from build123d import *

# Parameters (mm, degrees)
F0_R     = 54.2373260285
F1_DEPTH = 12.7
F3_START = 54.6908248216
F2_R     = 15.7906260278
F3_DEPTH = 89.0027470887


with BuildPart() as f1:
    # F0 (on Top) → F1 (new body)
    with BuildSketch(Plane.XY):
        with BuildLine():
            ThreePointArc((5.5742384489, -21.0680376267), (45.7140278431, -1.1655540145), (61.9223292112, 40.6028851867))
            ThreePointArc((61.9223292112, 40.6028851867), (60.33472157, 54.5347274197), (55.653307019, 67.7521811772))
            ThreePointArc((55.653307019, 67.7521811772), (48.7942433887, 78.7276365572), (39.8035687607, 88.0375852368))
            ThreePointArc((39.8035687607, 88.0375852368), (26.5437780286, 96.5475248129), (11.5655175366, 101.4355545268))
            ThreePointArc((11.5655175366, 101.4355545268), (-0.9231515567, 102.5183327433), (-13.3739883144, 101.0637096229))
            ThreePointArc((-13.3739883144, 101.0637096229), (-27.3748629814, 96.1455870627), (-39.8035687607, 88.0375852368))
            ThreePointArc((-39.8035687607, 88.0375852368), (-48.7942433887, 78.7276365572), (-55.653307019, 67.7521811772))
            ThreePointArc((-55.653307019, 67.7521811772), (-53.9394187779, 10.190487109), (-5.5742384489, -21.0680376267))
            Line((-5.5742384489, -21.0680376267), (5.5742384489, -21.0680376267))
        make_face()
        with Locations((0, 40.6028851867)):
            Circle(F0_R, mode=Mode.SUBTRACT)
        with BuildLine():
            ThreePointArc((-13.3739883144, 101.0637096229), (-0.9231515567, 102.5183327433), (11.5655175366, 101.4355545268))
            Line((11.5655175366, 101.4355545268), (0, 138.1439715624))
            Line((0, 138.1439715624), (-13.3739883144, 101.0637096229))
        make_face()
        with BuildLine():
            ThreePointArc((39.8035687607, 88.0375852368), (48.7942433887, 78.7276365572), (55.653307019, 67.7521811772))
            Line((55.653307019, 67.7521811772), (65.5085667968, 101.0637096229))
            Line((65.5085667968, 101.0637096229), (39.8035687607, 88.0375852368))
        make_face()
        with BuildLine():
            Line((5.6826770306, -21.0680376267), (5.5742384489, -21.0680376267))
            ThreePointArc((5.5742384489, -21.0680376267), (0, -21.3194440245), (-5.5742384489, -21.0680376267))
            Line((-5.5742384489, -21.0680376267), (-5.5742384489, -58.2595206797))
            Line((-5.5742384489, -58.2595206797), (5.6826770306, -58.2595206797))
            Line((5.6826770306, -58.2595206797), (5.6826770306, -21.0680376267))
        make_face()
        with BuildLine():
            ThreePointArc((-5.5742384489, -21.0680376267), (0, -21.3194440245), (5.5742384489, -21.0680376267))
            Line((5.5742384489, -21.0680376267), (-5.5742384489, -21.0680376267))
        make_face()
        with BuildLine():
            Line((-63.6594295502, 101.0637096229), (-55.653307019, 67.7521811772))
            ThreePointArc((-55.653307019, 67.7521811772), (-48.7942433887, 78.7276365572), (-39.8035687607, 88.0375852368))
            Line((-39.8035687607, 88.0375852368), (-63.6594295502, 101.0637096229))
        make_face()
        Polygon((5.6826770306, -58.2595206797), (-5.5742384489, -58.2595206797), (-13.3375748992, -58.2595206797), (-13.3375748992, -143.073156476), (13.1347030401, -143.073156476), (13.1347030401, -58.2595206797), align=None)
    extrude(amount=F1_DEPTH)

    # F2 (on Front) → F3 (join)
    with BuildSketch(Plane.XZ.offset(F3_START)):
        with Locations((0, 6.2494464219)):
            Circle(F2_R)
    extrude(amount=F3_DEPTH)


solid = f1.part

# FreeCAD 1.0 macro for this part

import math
import FreeCAD as App
import Part
import Sketcher
Q = App.Units.Quantity

doc = App.newDocument("Part")
params = doc.addObject("Spreadsheet::Sheet", "Params")
for row, (alias, value) in enumerate([
    ("pad1_length", "0.5 in"),
    ("pad2_length", "89.002747 mm"),
], start=1):
    params.set(f"A{row}", alias)
    params.set(f"B{row}", "=" + value)
    params.setAlias(f"B{row}", alias)

body = doc.addObject("PartDesign::Body", "Body")

sketch1 = doc.addObject("Sketcher::SketchObject", "Sketch")
body.addObject(sketch1)
sketch1.AttachmentSupport = (doc.XY_Plane, [""])
sketch1.MapMode = "FlatFace"
sketch1.addGeometry([
    Part.LineSegment(App.Vector(13.13, -58.26, 0), App.Vector(5.68, -58.26, 0)),
    Part.LineSegment(App.Vector(5.68, -58.26, 0), App.Vector(5.68, -21.07, 0)),
    Part.LineSegment(App.Vector(5.68, -21.07, 0), App.Vector(5.57, -21.07, 0)),
    Part.ArcOfCircle(Part.Circle(App.Vector(0, 40.6, 0), App.Vector(0, 0, 1), 61.92), math.radians(-85), math.radians(0)),
    Part.ArcOfCircle(Part.Circle(App.Vector(0, 40.6, 0), App.Vector(0, 0, 1), 61.92), math.radians(0), math.radians(26)),
    Part.LineSegment(App.Vector(55.65, 67.75, 0), App.Vector(65.51, 101.06, 0)),
    Part.LineSegment(App.Vector(65.51, 101.06, 0), App.Vector(39.8, 88.04, 0)),
    Part.ArcOfCircle(Part.Circle(App.Vector(0, 40.6, 0), App.Vector(0, 0, 1), 61.92), math.radians(50), math.radians(79)),
    Part.LineSegment(App.Vector(11.57, 101.44, 0), App.Vector(0, 138.14, 0)),
    Part.LineSegment(App.Vector(0, 138.14, 0), App.Vector(-13.37, 101.06, 0)),
    Part.ArcOfCircle(Part.Circle(App.Vector(0, 40.6, 0), App.Vector(0, 0, 1), 61.92), math.radians(102), math.radians(130)),
    Part.LineSegment(App.Vector(-39.8, 88.04, 0), App.Vector(-63.66, 101.06, 0)),
    Part.LineSegment(App.Vector(-63.66, 101.06, 0), App.Vector(-55.65, 67.75, 0)),
    Part.ArcOfCircle(Part.Circle(App.Vector(0, 40.6, 0), App.Vector(0, 0, 1), 61.92), math.radians(154), math.radians(265)),
    Part.LineSegment(App.Vector(-5.57, -21.07, 0), App.Vector(-5.57, -58.26, 0)),
    Part.LineSegment(App.Vector(-5.57, -58.26, 0), App.Vector(-13.34, -58.26, 0)),
    Part.LineSegment(App.Vector(-13.34, -58.26, 0), App.Vector(-13.34, -143.07, 0)),
    Part.LineSegment(App.Vector(-13.34, -143.07, 0), App.Vector(13.13, -143.07, 0)),
    Part.LineSegment(App.Vector(13.13, -143.07, 0), App.Vector(13.13, -58.26, 0)),
    Part.Circle(App.Vector(0, 40.6, 0), App.Vector(0, 0, 1), 54.24),
], False)
sketch1.addConstraint([
    Sketcher.Constraint("Coincident", 0, 2, 1, 1),
    Sketcher.Constraint("Coincident", 1, 2, 2, 1),
    Sketcher.Constraint("Coincident", 2, 2, 3, 1),
    Sketcher.Constraint("Tangent", 3, 2, 4, 1),
    Sketcher.Constraint("Coincident", 4, 2, 5, 1),
    Sketcher.Constraint("Coincident", 5, 2, 6, 1),
    Sketcher.Constraint("Coincident", 6, 2, 7, 1),
    Sketcher.Constraint("Coincident", 7, 2, 8, 1),
    Sketcher.Constraint("Coincident", 8, 2, 9, 1),
    Sketcher.Constraint("Coincident", 9, 2, 10, 1),
    Sketcher.Constraint("Coincident", 10, 2, 11, 1),
    Sketcher.Constraint("Coincident", 11, 2, 12, 1),
    Sketcher.Constraint("Coincident", 12, 2, 13, 1),
    Sketcher.Constraint("Coincident", 13, 2, 14, 1),
    Sketcher.Constraint("Coincident", 14, 2, 15, 1),
    Sketcher.Constraint("Coincident", 15, 2, 16, 1),
    Sketcher.Constraint("Coincident", 16, 2, 17, 1),
    Sketcher.Constraint("Coincident", 17, 2, 18, 1),
    Sketcher.Constraint("Coincident", 18, 2, 0, 1),
    Sketcher.Constraint("Horizontal", 0),
    Sketcher.Constraint("Vertical", 1),
    Sketcher.Constraint("Horizontal", 2),
    Sketcher.Constraint("Vertical", 14),
    Sketcher.Constraint("Horizontal", 15),
    Sketcher.Constraint("Vertical", 16),
    Sketcher.Constraint("Horizontal", 17),
    Sketcher.Constraint("Vertical", 18),
    Sketcher.Constraint("Coincident", 7, 3, 3, 3),
    Sketcher.Constraint("Coincident", 10, 3, 3, 3),
    Sketcher.Constraint("Coincident", 13, 3, 3, 3),
    Sketcher.Constraint("Coincident", 19, 3, 3, 3),
    Sketcher.Constraint("Equal", 3, 4),
    Sketcher.Constraint("Equal", 4, 7),
    Sketcher.Constraint("Equal", 7, 10),
    Sketcher.Constraint("Equal", 10, 13),
    Sketcher.Constraint("Symmetric", 6, 2, 10, 2, -2),
    Sketcher.Constraint("PointOnObject", 8, 2, -2),
    Sketcher.Constraint("Horizontal", 19, 3, 3, 2),
    Sketcher.Constraint("Horizontal", 5, 2, 9, 2),
    Sketcher.Constraint("Horizontal", 9, 2, 11, 2),
    Sketcher.Constraint("Horizontal", 4, 2, 12, 2),
    Sketcher.Constraint("Horizontal", 2, 2, 13, 2),
    Sketcher.Constraint("Horizontal", 0, 2, 14, 2),
    Sketcher.Constraint("Radius", 3, Q("61.922329 mm")),
    Sketcher.Constraint("Distance", 11, Q("1.0701002 in")),
    Sketcher.Constraint("Diameter", 19, Q("108.474652 mm")),
    Sketcher.Constraint("DistanceX", 2, 2, 2, 1, Q("0.108439 mm")),
    Sketcher.Constraint("DistanceX", 6, 2, 5, 2, Q("25.704998 mm")),
    Sketcher.Constraint("DistanceY", 3, 2, 6, 2, Q("47.4347 mm")),
    Sketcher.Constraint("Distance", 8, Q("38.487259 mm")),
    Sketcher.Constraint("Distance", 9, Q("39.418389 mm")),
    Sketcher.Constraint("Distance", 12, Q("34.260122 mm")),
    Sketcher.Constraint("DistanceX", 0, 2, 0, 1, Q("7.452026 mm")),
    Sketcher.Constraint("DistanceX", 15, 2, 15, 1, Q("7.763336 mm")),
    Sketcher.Constraint("DistanceX", 17, 1, 17, 2, Q("26.472278 mm")),
    Sketcher.Constraint("DistanceY", 1, 1, 1, 2, Q("37.191483 mm")),
    Sketcher.Constraint("DistanceY", 16, 2, 16, 1, Q("84.813636 mm")),
    Sketcher.Constraint("DistanceY", 0, 2, -1, 1, Q("58.259521 mm")),
    Sketcher.Constraint("DistanceY", -1, 1, 4, 2, Q("67.752181 mm")),
])
pad1 = doc.addObject("PartDesign::Pad", "Pad")
body.addObject(pad1)
pad1.Profile = sketch1
pad1.setExpression("Length", "Params.pad1_length")

sketch2 = doc.addObject("Sketcher::SketchObject", "Sketch001")
body.addObject(sketch2)
sketch2.AttachmentSupport = (doc.XZ_Plane, [""])
sketch2.MapMode = "FlatFace"
sketch2.AttachmentOffset = App.Placement(App.Vector(0, 0, 54.690825), App.Rotation())
sketch2.addGeometry(Part.Circle(App.Vector(0, 6, 0), App.Vector(0, 0, 1), 16), False)
sketch2.addConstraint([
    Sketcher.Constraint("PointOnObject", 0, 3, -2),
    Sketcher.Constraint("Diameter", 0, Q("31.581252 mm")),
    Sketcher.Constraint("DistanceY", -1, 1, 0, 3, Q("6.249446 mm")),
])
pad2 = doc.addObject("PartDesign::Pad", "Pad001")
body.addObject(pad2)
pad2.Profile = sketch2
pad2.setExpression("Length", "Params.pad2_length")

doc.recompute()
